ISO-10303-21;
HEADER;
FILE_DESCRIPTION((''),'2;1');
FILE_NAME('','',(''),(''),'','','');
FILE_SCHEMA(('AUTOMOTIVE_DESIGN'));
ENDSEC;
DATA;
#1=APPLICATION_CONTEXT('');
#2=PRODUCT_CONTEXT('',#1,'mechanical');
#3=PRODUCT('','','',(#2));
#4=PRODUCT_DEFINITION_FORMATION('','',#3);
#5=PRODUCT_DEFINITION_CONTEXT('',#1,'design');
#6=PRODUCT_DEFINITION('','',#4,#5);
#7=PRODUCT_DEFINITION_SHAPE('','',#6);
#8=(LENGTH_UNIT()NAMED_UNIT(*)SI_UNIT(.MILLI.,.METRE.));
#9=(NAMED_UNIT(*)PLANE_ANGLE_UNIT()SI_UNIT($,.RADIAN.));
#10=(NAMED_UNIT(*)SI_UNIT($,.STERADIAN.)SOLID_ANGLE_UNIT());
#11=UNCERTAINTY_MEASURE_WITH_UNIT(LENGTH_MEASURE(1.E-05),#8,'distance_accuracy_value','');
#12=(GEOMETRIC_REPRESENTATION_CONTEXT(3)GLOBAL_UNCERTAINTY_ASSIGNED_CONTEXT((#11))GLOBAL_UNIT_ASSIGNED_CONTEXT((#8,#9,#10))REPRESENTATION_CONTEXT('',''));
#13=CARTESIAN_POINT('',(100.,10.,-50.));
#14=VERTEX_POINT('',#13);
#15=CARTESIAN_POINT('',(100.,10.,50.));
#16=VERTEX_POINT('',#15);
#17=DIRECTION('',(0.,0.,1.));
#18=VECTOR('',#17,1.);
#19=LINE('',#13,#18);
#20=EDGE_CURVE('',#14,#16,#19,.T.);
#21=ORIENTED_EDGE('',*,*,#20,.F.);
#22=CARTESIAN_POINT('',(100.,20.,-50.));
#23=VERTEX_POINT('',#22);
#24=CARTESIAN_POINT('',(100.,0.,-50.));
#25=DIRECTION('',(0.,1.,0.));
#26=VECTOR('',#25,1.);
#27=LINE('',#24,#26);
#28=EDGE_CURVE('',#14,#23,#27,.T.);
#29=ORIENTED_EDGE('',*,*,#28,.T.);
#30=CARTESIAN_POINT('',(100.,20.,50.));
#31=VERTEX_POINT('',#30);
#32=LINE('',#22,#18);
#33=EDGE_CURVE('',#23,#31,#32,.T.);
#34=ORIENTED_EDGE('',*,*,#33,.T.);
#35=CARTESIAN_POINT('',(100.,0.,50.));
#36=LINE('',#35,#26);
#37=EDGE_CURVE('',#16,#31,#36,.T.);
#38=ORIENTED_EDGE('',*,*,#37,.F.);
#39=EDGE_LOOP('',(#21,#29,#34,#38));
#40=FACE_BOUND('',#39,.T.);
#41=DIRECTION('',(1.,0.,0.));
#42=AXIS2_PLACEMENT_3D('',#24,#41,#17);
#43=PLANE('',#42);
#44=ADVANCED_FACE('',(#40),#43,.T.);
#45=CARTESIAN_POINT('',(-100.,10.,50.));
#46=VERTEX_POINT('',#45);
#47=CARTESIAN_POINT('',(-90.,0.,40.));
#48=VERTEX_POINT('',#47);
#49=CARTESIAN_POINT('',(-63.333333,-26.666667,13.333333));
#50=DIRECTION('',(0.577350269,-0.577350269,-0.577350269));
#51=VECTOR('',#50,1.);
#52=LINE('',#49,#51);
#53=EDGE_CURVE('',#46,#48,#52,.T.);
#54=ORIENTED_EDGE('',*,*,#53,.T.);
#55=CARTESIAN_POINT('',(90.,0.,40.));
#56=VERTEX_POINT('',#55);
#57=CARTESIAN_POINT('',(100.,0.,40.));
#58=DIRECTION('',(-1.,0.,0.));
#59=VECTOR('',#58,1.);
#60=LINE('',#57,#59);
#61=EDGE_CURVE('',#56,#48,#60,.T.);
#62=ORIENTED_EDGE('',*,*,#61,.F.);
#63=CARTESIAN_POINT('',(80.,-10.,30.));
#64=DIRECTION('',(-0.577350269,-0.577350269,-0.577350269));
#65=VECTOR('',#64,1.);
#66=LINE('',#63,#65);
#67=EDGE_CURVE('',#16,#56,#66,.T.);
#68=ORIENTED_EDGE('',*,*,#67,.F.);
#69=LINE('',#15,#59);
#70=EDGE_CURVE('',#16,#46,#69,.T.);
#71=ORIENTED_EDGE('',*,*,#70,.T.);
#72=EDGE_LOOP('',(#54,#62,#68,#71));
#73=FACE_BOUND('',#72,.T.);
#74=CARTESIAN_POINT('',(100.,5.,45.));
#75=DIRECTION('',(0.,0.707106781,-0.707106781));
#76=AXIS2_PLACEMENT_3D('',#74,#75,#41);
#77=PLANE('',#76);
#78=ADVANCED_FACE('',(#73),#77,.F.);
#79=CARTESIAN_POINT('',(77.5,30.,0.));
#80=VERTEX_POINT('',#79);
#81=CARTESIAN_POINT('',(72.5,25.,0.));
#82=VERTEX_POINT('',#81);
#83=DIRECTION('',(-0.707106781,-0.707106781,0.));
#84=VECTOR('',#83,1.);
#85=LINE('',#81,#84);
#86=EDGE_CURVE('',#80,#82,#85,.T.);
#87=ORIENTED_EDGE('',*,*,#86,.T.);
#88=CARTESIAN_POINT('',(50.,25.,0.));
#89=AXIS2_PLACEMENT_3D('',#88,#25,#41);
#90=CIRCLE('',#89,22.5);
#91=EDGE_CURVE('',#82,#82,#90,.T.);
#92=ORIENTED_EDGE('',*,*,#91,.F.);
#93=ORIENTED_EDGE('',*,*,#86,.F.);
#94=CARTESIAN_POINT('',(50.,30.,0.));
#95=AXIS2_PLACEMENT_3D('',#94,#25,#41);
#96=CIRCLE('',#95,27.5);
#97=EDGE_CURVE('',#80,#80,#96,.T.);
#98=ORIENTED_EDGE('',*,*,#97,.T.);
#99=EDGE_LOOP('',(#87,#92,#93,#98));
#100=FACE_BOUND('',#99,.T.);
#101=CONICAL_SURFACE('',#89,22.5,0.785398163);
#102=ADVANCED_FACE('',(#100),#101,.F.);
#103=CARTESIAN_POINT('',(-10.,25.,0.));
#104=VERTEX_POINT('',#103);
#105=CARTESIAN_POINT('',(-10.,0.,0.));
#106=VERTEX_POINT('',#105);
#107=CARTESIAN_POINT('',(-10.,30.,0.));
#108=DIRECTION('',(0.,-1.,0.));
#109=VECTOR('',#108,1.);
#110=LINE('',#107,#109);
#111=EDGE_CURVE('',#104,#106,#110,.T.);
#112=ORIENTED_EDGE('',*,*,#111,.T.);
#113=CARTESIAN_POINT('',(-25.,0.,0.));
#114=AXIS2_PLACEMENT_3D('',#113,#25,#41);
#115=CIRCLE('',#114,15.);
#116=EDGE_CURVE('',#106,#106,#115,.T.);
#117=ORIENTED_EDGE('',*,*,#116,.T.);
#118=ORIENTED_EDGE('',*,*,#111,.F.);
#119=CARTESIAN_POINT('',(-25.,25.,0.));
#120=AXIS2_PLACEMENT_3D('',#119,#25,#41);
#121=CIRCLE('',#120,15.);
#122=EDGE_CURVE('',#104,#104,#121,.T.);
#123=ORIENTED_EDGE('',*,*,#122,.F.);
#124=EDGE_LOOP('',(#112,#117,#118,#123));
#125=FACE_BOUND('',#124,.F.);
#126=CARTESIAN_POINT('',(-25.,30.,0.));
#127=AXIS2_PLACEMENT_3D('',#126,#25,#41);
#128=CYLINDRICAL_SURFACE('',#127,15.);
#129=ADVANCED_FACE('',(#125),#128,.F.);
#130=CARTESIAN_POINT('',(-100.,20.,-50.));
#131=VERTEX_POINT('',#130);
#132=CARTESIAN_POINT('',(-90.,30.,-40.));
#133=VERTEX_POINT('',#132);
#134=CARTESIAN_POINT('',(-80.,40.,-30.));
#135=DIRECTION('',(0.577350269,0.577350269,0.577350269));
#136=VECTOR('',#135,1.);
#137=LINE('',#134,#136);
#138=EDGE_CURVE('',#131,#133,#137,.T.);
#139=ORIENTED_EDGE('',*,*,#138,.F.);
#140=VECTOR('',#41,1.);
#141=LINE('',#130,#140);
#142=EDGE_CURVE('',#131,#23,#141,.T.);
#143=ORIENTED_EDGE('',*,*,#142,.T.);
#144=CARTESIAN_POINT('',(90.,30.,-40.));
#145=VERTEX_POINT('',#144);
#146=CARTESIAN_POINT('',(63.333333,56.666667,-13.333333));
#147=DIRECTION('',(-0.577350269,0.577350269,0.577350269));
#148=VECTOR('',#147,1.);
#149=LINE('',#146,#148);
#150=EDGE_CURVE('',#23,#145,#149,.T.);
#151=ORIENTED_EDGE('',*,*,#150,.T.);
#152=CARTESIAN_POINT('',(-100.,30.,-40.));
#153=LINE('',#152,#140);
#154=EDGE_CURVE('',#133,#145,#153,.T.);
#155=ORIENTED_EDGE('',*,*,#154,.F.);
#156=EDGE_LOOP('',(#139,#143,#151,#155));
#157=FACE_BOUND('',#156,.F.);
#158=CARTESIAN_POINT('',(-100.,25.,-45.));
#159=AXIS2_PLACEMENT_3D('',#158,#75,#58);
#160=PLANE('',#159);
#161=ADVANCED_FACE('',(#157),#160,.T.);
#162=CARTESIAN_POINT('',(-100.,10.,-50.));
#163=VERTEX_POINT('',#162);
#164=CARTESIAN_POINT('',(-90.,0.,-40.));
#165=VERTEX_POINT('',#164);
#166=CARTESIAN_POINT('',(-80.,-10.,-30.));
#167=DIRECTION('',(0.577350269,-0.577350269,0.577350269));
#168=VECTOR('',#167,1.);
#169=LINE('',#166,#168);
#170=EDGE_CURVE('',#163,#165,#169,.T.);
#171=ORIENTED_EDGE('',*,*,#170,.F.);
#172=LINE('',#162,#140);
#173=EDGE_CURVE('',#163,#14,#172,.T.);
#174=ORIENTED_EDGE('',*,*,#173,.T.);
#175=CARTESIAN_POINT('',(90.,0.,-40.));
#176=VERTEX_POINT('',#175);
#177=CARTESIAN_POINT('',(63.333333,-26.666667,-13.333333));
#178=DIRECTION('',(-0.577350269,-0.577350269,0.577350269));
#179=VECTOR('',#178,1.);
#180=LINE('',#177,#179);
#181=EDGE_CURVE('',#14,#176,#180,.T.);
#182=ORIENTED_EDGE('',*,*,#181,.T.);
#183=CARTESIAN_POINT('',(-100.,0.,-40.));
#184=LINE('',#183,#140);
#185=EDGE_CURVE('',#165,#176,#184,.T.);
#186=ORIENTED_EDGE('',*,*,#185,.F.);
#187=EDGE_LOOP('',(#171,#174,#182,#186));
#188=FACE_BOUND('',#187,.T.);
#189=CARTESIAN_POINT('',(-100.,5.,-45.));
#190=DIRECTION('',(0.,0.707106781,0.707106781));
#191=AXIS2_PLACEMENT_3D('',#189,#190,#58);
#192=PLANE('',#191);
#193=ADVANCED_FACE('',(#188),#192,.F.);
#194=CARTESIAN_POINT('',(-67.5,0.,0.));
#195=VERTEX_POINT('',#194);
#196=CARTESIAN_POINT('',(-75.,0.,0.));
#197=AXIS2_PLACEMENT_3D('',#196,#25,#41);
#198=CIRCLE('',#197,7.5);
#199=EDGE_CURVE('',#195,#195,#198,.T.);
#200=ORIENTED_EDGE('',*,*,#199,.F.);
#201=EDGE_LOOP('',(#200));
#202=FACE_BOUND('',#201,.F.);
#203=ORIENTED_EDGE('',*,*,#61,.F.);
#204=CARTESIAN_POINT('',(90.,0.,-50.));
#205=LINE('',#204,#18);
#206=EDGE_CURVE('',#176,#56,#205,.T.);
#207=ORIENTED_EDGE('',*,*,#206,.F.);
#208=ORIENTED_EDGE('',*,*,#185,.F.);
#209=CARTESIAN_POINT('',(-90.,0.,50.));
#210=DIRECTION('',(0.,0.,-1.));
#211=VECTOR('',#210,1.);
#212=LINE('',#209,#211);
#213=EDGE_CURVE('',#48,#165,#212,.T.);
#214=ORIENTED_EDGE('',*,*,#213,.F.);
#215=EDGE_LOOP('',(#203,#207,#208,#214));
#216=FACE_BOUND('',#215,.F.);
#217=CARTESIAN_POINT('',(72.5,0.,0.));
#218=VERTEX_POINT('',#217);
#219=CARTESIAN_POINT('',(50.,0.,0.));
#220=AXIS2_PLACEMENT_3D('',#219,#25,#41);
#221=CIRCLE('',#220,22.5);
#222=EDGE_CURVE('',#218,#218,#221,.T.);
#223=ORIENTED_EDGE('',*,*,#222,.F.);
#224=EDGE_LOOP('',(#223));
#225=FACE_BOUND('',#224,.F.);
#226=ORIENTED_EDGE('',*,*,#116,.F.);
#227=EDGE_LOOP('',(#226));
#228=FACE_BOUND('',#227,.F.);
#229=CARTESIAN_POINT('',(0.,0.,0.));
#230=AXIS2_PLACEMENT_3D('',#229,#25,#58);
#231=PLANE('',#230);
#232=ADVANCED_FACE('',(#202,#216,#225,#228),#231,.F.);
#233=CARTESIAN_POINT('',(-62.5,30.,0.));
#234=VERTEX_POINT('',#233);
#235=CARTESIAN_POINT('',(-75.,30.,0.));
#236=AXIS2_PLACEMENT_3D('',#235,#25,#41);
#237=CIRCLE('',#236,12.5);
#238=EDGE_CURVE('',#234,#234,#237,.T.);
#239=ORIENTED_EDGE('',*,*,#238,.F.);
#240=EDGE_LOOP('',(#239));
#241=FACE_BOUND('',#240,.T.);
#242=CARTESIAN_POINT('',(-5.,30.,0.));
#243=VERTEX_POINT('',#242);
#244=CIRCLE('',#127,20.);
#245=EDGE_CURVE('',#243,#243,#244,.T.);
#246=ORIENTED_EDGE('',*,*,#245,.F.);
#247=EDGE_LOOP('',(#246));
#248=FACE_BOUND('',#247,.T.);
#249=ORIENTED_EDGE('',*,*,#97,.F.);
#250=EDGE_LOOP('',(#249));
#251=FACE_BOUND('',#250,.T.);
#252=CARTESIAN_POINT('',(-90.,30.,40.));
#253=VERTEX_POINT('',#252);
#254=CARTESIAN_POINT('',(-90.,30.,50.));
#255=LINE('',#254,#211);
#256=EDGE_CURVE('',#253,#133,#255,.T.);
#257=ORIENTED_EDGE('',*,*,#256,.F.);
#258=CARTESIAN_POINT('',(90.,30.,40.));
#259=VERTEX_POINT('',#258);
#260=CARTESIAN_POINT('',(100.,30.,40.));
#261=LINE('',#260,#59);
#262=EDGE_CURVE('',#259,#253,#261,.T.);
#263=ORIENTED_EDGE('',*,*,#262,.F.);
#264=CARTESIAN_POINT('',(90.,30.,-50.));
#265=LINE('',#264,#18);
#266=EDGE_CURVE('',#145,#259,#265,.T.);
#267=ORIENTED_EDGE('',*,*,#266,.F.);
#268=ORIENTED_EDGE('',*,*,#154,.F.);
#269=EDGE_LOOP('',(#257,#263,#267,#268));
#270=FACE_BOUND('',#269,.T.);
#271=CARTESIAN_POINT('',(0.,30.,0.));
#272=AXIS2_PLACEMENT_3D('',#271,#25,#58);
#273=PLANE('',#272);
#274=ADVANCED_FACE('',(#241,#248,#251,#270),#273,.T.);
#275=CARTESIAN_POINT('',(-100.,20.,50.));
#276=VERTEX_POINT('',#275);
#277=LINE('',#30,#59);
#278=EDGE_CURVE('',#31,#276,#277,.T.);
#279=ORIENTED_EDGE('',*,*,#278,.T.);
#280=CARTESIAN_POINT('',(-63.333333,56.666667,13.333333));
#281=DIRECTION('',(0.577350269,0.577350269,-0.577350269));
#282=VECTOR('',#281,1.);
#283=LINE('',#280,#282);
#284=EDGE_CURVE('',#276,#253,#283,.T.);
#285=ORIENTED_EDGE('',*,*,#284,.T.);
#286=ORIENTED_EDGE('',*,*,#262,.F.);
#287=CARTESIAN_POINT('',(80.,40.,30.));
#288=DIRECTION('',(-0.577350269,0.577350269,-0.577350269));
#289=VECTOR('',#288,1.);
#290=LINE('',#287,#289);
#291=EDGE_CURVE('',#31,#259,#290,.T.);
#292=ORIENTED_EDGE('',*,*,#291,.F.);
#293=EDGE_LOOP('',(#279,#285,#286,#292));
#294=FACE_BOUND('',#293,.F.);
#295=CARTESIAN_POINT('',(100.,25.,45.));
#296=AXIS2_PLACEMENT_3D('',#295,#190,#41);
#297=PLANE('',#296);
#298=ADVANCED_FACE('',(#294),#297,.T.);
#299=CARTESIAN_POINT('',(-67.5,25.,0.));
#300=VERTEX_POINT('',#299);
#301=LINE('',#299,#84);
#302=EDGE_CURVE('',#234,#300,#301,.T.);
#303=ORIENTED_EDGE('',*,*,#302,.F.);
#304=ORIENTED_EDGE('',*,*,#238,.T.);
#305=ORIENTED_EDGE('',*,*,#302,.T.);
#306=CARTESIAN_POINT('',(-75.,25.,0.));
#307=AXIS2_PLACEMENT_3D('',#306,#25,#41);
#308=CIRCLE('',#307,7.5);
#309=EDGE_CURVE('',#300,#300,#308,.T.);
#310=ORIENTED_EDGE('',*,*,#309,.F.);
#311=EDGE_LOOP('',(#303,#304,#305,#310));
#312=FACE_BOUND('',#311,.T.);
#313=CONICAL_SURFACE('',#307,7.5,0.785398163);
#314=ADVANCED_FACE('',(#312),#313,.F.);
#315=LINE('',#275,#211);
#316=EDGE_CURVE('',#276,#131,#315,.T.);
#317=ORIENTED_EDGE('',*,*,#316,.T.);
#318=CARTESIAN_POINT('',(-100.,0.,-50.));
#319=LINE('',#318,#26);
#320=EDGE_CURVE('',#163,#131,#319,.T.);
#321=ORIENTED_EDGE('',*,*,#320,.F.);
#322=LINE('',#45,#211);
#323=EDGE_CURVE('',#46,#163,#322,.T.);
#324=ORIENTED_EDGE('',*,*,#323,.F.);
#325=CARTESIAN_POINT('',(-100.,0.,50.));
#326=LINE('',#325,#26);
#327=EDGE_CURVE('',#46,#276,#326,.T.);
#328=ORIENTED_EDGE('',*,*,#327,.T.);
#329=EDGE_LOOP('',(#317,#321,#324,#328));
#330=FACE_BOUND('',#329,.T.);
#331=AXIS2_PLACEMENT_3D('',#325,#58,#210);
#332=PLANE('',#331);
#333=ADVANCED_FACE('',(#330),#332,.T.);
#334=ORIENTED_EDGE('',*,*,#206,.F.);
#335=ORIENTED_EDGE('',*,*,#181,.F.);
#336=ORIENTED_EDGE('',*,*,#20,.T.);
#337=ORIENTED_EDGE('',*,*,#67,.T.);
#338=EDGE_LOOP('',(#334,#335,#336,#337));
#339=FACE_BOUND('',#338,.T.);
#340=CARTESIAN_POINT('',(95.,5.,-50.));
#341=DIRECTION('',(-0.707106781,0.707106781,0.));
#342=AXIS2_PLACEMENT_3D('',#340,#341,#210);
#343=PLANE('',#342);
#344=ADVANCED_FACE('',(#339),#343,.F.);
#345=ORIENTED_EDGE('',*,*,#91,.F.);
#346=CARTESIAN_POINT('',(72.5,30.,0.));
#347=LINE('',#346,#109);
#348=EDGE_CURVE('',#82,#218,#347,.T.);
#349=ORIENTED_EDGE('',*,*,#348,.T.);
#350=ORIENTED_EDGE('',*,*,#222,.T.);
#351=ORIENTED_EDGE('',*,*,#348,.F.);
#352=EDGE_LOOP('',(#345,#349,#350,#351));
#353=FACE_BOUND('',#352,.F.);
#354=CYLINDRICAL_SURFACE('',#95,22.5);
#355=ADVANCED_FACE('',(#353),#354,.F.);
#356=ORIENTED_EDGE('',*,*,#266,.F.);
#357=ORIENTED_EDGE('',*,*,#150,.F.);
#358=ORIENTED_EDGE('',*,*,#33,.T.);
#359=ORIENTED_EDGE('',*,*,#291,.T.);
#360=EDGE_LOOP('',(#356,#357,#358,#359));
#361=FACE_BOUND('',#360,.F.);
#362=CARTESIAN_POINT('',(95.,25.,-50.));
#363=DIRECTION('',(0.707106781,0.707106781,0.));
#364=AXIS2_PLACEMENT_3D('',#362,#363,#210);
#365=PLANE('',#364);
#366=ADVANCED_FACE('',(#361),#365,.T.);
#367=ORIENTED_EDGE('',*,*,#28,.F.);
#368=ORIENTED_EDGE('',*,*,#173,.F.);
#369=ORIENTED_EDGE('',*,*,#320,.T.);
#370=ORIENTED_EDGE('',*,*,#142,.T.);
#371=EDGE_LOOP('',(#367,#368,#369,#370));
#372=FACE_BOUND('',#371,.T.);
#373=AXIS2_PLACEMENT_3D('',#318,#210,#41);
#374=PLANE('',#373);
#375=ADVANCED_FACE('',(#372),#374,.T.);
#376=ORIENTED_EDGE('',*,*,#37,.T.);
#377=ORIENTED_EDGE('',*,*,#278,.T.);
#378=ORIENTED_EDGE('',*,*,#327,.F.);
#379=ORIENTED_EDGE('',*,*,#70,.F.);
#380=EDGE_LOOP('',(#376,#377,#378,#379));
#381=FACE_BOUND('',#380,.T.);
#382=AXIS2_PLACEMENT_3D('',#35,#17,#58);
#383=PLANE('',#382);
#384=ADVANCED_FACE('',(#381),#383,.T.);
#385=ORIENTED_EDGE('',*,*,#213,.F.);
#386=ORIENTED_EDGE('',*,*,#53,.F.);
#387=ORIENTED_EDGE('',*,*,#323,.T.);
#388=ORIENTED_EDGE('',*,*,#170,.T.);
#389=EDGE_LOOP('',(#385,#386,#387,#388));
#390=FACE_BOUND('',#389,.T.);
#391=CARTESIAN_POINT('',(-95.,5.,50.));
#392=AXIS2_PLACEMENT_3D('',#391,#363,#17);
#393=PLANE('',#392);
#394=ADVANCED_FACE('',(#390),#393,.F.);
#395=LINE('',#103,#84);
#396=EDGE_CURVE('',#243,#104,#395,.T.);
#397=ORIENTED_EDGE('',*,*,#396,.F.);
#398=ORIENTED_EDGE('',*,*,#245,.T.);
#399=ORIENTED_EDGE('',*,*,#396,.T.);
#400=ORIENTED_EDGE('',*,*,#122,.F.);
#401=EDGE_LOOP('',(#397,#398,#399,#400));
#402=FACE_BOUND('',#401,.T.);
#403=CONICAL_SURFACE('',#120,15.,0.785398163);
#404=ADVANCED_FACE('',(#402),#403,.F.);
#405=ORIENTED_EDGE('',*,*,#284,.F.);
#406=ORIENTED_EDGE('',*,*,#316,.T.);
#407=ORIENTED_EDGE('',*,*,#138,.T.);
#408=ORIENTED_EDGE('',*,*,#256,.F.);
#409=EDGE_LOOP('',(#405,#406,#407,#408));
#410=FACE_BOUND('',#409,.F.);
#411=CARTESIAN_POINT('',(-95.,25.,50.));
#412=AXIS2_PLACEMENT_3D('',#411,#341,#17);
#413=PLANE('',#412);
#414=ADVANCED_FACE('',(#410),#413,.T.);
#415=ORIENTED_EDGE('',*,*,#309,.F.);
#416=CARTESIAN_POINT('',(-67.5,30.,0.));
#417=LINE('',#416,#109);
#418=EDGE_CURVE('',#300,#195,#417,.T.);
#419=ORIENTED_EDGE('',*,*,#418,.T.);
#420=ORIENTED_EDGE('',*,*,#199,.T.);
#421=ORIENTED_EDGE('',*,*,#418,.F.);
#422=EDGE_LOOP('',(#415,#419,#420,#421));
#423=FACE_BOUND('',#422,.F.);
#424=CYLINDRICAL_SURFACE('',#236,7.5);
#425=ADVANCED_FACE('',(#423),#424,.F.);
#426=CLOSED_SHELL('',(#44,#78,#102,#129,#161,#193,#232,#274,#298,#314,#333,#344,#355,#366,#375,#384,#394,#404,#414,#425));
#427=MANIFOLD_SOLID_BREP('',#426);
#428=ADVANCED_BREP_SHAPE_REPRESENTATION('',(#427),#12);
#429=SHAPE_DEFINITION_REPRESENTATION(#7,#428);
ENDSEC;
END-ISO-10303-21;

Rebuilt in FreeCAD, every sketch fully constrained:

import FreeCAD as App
import Part
import Sketcher

V = App.Vector
Q = App.Units.Quantity


def edges_at(feature, points):
    """Names of the edges that pass closest to the given points."""
    edges = feature.Shape.Edges
    near = lambda p: min(range(len(edges)), key=lambda i: edges[i].distToShape(Part.Vertex(*p))[0])
    return sorted({f"Edge{near(p) + 1}" for p in points})


def add_polygon(sketch, points):
    """Adds a closed chain of lines whose ends are joined by coincident constraints."""
    first, n = sketch.GeometryCount, len(points)
    for a, b in zip(points, points[1:] + points[:1]):
        sketch.addGeometry(Part.LineSegment(App.Vector(*a, 0), App.Vector(*b, 0)), False)
    for i in range(n):
        sketch.addConstraint(Sketcher.Constraint("Coincident", first + i, 2, first + (i + 1) % n, 1))

doc = App.newDocument("Part")
body = doc.addObject("PartDesign::Body", "Body")

sketch1 = body.newObject("Sketcher::SketchObject", "Sketch")
sketch1.AttachmentSupport = (doc.getObject("XZ_Plane"), [""])
sketch1.MapMode = "FlatFace"
add_polygon(sketch1, [(100, -50), (-100, -50), (-100, 50), (100, 50)])
sketch1.addConstraint([
    Sketcher.Constraint("Horizontal", 0),
    Sketcher.Constraint("Vertical", 1),
    Sketcher.Constraint("Horizontal", 2),
    Sketcher.Constraint("Vertical", 3),
    Sketcher.Constraint("Symmetric", 0, 2, 2, 2, -1, 1),
    Sketcher.Constraint("DistanceX", 0, 2, 0, 1, Q("200 mm")),
    Sketcher.Constraint("DistanceY", 1, 1, 1, 2, Q("100 mm")),
])
pad1 = body.newObject("PartDesign::Pad", "Pad")
pad1.Profile = sketch1
pad1.Length = 30
pad1.Reversed = True
doc.recompute()

chamfer = body.newObject("PartDesign::Chamfer", "Chamfer")
chamfer.Base = (pad1, edges_at(pad1, [
    (0, 30, 50),
    (0, 0, 50),
    (-100, 30, 0),
    (-100, 0, 0),
    (0, 30, -50),
    (100, 30, 0),
    (100, 0, 0),
    (0, 0, -50),
]))
chamfer.Size = 10

sketch2 = body.newObject("Sketcher::SketchObject", "Sketch001")
sketch2.AttachmentSupport = (doc.getObject("XZ_Plane"), [""])
sketch2.MapMode = "FlatFace"
sketch2.AttachmentOffset = App.Placement(V(0, 0, -30), App.Rotation())
sketch2.addGeometry([
    Part.Circle(V(-75, 0, 0), V(0, 0, 1), 7.5),
    Part.Circle(V(-25, 0, 0), V(0, 0, 1), 15),
    Part.Circle(V(50, 0, 0), V(0, 0, 1), 22.5),
], False)
sketch2.addConstraint([
    Sketcher.Constraint("PointOnObject", 0, 3, -1),
    Sketcher.Constraint("PointOnObject", 1, 3, -1),
    Sketcher.Constraint("PointOnObject", 2, 3, -1),
    Sketcher.Constraint("Diameter", 0, Q("15 mm")),
    Sketcher.Constraint("Diameter", 1, Q("30 mm")),
    Sketcher.Constraint("Diameter", 2, Q("45 mm")),
    Sketcher.Constraint("DistanceX", 0, 3, -1, 1, Q("75 mm")),
    Sketcher.Constraint("DistanceX", 1, 3, -1, 1, Q("25 mm")),
    Sketcher.Constraint("DistanceX", 1, 3, 2, 3, Q("75 mm")),
])
pocket1 = body.newObject("PartDesign::Pocket", "Pocket")
pocket1.Profile = sketch2
pocket1.Type = "ThroughAll"
pocket1.Reversed = True
doc.recompute()

chamfer2 = body.newObject("PartDesign::Chamfer", "Chamfer001")
chamfer2.Base = (pocket1, edges_at(pocket1, [(-82.5, 30, 0), (-40, 30, 0), (27.5, 30, 0)]))
chamfer2.Size = 5

doc.recompute()
